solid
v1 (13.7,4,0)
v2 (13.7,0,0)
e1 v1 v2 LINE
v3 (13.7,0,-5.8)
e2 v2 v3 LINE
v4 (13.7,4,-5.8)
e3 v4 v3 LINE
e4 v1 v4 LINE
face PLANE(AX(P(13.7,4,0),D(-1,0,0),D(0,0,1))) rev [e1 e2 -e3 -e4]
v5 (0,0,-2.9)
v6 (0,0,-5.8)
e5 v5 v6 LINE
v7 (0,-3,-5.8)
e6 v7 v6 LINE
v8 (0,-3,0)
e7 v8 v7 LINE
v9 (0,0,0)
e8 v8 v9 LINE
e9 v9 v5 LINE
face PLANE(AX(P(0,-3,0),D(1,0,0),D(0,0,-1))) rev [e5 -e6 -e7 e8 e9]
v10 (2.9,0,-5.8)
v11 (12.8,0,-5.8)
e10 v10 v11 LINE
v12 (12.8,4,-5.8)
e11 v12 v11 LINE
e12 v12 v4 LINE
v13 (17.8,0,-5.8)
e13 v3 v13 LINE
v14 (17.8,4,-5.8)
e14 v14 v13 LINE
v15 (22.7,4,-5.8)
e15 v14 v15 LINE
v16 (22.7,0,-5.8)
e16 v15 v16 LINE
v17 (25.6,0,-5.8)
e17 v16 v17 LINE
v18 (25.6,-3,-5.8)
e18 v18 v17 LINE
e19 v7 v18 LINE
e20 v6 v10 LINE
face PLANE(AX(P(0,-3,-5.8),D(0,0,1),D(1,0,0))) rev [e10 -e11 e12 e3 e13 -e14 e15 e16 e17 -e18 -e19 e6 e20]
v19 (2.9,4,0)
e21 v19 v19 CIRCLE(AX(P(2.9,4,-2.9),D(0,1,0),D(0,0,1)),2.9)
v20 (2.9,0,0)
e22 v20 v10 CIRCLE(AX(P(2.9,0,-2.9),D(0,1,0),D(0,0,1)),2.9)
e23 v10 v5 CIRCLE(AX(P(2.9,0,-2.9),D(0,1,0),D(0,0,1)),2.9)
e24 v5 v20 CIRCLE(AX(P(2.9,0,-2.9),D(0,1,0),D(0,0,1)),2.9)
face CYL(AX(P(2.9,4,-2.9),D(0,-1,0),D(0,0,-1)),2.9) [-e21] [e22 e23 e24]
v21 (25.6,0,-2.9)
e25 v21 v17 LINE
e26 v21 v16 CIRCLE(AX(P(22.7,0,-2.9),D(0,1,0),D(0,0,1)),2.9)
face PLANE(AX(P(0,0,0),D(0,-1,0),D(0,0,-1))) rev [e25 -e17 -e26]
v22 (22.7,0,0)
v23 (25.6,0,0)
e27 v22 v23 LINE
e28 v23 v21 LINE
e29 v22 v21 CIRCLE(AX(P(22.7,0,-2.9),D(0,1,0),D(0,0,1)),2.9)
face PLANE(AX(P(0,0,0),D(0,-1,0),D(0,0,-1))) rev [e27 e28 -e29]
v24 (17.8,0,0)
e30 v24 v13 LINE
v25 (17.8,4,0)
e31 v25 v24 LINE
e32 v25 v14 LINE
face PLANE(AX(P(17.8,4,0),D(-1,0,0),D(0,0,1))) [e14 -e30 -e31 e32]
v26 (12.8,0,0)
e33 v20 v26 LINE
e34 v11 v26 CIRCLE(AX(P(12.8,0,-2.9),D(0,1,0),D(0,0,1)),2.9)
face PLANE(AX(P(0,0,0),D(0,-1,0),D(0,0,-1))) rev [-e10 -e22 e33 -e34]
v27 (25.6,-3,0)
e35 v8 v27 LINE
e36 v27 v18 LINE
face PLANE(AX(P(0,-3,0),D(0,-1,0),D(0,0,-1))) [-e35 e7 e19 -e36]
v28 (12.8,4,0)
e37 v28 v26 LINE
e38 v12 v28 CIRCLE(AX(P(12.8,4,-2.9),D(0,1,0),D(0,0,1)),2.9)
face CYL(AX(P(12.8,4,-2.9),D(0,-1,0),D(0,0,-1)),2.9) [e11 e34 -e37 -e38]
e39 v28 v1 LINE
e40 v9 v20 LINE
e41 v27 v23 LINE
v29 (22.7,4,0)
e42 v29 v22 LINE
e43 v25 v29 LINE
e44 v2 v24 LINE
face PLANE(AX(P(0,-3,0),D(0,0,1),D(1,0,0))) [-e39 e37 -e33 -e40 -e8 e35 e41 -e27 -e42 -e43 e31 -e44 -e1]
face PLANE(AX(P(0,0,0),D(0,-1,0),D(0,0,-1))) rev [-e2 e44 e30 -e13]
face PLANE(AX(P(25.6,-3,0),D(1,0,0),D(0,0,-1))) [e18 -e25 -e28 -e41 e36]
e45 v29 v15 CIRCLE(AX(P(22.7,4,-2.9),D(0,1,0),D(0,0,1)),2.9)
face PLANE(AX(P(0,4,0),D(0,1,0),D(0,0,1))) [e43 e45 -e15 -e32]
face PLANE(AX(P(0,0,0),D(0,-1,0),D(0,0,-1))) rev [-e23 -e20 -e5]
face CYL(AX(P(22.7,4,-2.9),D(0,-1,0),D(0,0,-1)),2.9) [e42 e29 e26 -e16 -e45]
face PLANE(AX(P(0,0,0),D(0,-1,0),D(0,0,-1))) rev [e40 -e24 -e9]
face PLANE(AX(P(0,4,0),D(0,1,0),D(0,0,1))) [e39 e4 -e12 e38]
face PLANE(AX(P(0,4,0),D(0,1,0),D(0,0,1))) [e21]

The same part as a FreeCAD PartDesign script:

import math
import FreeCAD as App
import Part
import Sketcher
from FreeCAD import Vector

doc = App.newDocument("Part")
body = doc.addObject("PartDesign::Body", "Body")

sketch1 = doc.addObject("Sketcher::SketchObject", "Sketch")
body.addObject(sketch1)
sketch1.AttachmentSupport = (doc.XZ_Plane, [""])
sketch1.MapMode = "FlatFace"
sketch1.addGeometry([
    Part.LineSegment(Vector(0, -5.8, 0), Vector(0, 0, 0)),
    Part.LineSegment(Vector(0, 0, 0), Vector(25.6, 0, 0)),
    Part.LineSegment(Vector(25.6, 0, 0), Vector(25.6, -5.8, 0)),
    Part.LineSegment(Vector(25.6, -5.8, 0), Vector(0, -5.8, 0)),
], False)
sketch1.addConstraint([
    Sketcher.Constraint("Coincident", 0, 2, 1, 1),
    Sketcher.Constraint("Coincident", 1, 2, 2, 1),
    Sketcher.Constraint("Coincident", 2, 2, 3, 1),
    Sketcher.Constraint("Coincident", 3, 2, 0, 1),
    Sketcher.Constraint("Vertical", 0),
    Sketcher.Constraint("Horizontal", 1),
    Sketcher.Constraint("Vertical", 2),
    Sketcher.Constraint("Horizontal", 3),
    Sketcher.Constraint("Coincident", 0, 2, -1, 1),
    Sketcher.Constraint("DistanceX", 1, 1, 1, 2, 25.6),
    Sketcher.Constraint("DistanceY", 0, 1, 0, 2, 5.8),
])
pad1 = doc.addObject("PartDesign::Pad", "Pad")
body.addObject(pad1)
pad1.Profile = sketch1
pad1.Length = 3

sketch2 = doc.addObject("Sketcher::SketchObject", "Sketch001")
body.addObject(sketch2)
sketch2.AttachmentSupport = (doc.XZ_Plane, [""])
sketch2.MapMode = "FlatFace"
sketch2.addGeometry([
    Part.Circle(Vector(2.9, -2.9, 0), Vector(0, 0, 1), 2.9),
    Part.ArcOfCircle(Part.Circle(Vector(12.8, -2.9, 0), Vector(0, 0, 1), 2.9), math.radians(90), math.radians(270)),
    Part.LineSegment(Vector(12.8, 0, 0), Vector(13.7, 0, 0)),
    Part.LineSegment(Vector(13.7, 0, 0), Vector(13.7, -5.8, 0)),
    Part.LineSegment(Vector(13.7, -5.8, 0), Vector(12.8, -5.8, 0)),
    Part.ArcOfCircle(Part.Circle(Vector(22.7, -2.9, 0), Vector(0, 0, 1), 2.9), math.radians(0), math.radians(90)),
    Part.ArcOfCircle(Part.Circle(Vector(22.7, -2.9, 0), Vector(0, 0, 1), 2.9), math.radians(-90), math.radians(0)),
    Part.LineSegment(Vector(22.7, -5.8, 0), Vector(17.8, -5.8, 0)),
    Part.LineSegment(Vector(17.8, -5.8, 0), Vector(17.8, 0, 0)),
    Part.LineSegment(Vector(17.8, 0, 0), Vector(22.7, 0, 0)),
], False)
sketch2.addConstraint([
    Sketcher.Constraint("Tangent", 1, 1, 2, 1),
    Sketcher.Constraint("Coincident", 2, 2, 3, 1),
    Sketcher.Constraint("Coincident", 3, 2, 4, 1),
    Sketcher.Constraint("Tangent", 4, 2, 1, 2),
    Sketcher.Constraint("Tangent", 5, 1, 6, 2),
    Sketcher.Constraint("Tangent", 6, 1, 7, 1),
    Sketcher.Constraint("Coincident", 7, 2, 8, 1),
    Sketcher.Constraint("Coincident", 8, 2, 9, 1),
    Sketcher.Constraint("Tangent", 9, 2, 5, 2),
    Sketcher.Constraint("Horizontal", 2),
    Sketcher.Constraint("Vertical", 3),
    Sketcher.Constraint("Horizontal", 4),
    Sketcher.Constraint("Horizontal", 7),
    Sketcher.Constraint("Vertical", 8),
    Sketcher.Constraint("Horizontal", 9),
    Sketcher.Constraint("Equal", 0, 1),
    Sketcher.Constraint("Equal", 1, 5),
    Sketcher.Constraint("Equal", 5, 6),
    Sketcher.Constraint("PointOnObject", 1, 1, -1),
    Sketcher.Constraint("PointOnObject", 8, 2, -1),
    Sketcher.Constraint("Horizontal", 0, 3, 1, 3),
    Sketcher.Constraint("Horizontal", 6, 3, 5, 1),
    Sketcher.Constraint("Diameter", 0, 5.8),
    Sketcher.Constraint("DistanceX", 2, 1, 2, 2, 0.9),
    Sketcher.Constraint("DistanceX", 7, 2, 7, 1, 4.9),
    Sketcher.Constraint("DistanceX", 2, 2, 6, 3, 9.0),
    Sketcher.Constraint("DistanceX", -1, 1, 0, 3, 2.9),
    Sketcher.Constraint("DistanceX", -1, 1, 1, 3, 12.8),
])
pad2 = doc.addObject("PartDesign::Pad", "Pad001")
body.addObject(pad2)
pad2.Profile = sketch2
pad2.Length = 4
pad2.Reversed = True

doc.recompute()
